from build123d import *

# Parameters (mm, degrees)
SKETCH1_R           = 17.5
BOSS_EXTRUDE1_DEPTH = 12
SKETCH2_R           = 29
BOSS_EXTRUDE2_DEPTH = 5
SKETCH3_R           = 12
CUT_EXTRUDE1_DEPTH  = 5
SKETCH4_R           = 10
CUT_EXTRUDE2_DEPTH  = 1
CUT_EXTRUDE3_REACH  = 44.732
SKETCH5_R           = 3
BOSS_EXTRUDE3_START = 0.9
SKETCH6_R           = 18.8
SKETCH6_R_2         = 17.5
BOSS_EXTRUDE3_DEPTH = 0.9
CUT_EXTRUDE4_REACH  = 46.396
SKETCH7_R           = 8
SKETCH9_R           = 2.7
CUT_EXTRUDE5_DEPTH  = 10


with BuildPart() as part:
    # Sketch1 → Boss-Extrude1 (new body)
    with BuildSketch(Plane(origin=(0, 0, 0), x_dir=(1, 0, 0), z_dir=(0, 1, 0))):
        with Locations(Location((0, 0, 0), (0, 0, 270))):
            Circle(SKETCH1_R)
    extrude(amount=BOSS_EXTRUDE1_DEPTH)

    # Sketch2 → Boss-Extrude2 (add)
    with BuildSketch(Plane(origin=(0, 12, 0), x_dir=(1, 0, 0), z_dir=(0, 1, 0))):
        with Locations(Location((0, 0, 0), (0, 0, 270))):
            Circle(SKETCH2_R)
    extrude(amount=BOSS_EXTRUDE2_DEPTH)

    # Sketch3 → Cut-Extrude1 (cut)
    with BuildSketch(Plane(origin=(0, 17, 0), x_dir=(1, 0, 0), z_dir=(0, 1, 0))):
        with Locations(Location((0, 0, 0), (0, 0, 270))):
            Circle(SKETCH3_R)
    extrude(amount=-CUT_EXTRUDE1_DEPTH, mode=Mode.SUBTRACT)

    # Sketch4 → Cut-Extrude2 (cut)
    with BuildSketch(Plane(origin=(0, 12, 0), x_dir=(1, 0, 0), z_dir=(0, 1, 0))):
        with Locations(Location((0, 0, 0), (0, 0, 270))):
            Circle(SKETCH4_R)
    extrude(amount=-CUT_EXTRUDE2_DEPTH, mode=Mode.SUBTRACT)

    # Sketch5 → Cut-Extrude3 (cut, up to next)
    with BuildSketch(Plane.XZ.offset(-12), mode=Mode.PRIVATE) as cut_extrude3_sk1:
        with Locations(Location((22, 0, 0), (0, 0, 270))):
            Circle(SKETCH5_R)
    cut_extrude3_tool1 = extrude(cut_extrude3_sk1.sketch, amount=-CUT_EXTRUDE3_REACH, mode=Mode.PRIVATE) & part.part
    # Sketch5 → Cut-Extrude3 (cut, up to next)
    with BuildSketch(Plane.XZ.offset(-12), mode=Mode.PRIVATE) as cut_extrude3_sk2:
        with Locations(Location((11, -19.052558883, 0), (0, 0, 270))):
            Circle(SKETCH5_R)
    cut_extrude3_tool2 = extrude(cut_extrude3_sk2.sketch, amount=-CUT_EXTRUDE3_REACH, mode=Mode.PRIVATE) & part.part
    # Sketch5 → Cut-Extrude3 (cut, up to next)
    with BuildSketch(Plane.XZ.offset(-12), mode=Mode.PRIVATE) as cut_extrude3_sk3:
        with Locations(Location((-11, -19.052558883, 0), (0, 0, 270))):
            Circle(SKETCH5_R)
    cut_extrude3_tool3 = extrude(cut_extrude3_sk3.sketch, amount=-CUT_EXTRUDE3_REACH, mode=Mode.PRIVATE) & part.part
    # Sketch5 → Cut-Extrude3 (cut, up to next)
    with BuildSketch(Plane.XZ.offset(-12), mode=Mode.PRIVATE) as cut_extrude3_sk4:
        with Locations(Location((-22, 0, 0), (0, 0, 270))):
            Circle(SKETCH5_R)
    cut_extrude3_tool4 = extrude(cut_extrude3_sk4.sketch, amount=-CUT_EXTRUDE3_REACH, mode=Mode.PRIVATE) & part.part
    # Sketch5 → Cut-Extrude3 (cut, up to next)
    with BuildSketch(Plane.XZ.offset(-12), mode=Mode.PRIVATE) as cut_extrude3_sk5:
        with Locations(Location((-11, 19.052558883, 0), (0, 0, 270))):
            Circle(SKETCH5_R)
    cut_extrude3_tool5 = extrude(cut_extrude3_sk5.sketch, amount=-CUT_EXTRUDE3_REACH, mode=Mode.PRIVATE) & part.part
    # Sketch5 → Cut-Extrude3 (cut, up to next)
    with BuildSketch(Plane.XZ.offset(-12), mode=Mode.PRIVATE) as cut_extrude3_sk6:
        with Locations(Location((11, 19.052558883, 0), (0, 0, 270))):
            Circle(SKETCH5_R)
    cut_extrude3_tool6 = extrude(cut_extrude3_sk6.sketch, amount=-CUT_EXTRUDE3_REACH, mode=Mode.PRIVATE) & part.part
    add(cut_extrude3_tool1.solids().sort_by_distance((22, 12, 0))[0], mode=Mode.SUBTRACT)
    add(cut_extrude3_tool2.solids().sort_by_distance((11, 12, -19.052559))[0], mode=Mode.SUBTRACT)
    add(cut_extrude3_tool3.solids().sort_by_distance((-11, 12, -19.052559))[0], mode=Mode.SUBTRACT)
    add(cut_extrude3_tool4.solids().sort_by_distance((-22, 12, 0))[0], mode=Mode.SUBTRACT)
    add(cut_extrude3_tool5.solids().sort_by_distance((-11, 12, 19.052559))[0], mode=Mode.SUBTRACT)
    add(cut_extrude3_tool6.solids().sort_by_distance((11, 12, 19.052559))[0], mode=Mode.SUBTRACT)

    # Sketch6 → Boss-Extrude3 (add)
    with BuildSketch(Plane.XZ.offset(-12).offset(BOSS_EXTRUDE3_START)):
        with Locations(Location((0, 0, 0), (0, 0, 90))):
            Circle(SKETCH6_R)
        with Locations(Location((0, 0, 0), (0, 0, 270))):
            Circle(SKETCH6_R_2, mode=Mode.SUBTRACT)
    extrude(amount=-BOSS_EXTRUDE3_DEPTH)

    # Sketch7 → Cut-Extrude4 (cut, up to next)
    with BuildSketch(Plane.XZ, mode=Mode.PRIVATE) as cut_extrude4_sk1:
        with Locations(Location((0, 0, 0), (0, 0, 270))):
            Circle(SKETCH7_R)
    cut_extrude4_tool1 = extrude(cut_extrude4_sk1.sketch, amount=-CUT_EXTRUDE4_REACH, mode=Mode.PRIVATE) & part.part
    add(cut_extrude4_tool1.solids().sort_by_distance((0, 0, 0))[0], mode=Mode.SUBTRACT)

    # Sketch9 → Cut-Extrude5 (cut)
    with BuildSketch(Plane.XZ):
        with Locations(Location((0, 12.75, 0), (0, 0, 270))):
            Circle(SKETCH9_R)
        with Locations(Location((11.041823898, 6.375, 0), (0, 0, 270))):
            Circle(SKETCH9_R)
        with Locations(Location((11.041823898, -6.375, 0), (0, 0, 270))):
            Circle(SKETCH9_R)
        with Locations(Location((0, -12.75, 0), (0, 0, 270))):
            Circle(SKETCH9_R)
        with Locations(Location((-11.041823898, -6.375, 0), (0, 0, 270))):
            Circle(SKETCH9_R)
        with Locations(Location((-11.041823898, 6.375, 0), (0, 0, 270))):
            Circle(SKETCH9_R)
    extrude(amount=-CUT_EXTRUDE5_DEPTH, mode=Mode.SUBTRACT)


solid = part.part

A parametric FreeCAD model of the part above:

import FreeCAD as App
import Part
import Sketcher
from FreeCAD import Vector

doc = App.newDocument("Part")
body = doc.addObject("PartDesign::Body", "Body")

# Sketch on XZ plane
sketch1 = body.newObject("Sketcher::SketchObject", "Sketch")
sketch1.AttachmentSupport = (doc.getObject("XZ_Plane"), [""])
sketch1.MapMode = "FlatFace"
sketch1.addGeometry(Part.Circle(Vector(0, 0, 0), Vector(0, 0, 1), 18), False)
sketch1.addConstraint([
    Sketcher.Constraint("Coincident", 0, 3, -1, 1),
    Sketcher.Constraint("Diameter", 0, 35.0),
])
pad1 = body.newObject("PartDesign::Pad", "Pad")
pad1.Profile = sketch1
pad1.Length = 12
pad1.Reversed = True

# Sketch on XZ plane
sketch2 = body.newObject("Sketcher::SketchObject", "Sketch001")
sketch2.AttachmentSupport = (doc.getObject("XZ_Plane"), [""])
sketch2.MapMode = "FlatFace"
sketch2.AttachmentOffset = App.Placement(Vector(0, 0, -12), App.Rotation())
sketch2.addGeometry(Part.Circle(Vector(0, 0, 0), Vector(0, 0, 1), 29), False)
sketch2.addConstraint([
    Sketcher.Constraint("Coincident", 0, 3, -1, 1),
    Sketcher.Constraint("Diameter", 0, 58.0),
])
pad2 = body.newObject("PartDesign::Pad", "Pad001")
pad2.Profile = sketch2
pad2.Length = 5
pad2.Reversed = True

# Sketch on XZ plane
sketch3 = body.newObject("Sketcher::SketchObject", "Sketch002")
sketch3.AttachmentSupport = (doc.getObject("XZ_Plane"), [""])
sketch3.MapMode = "FlatFace"
sketch3.AttachmentOffset = App.Placement(Vector(0, 0, -17), App.Rotation())
sketch3.addGeometry(Part.Circle(Vector(0, 0, 0), Vector(0, 0, 1), 12), False)
sketch3.addConstraint([
    Sketcher.Constraint("Coincident", 0, 3, -1, 1),
    Sketcher.Constraint("Diameter", 0, 24.0),
])
pocket1 = body.newObject("PartDesign::Pocket", "Pocket")
pocket1.Profile = sketch3
pocket1.Length = 5
pocket1.Reversed = True

# Sketch on XZ plane
sketch4 = body.newObject("Sketcher::SketchObject", "Sketch003")
sketch4.AttachmentSupport = (doc.getObject("XZ_Plane"), [""])
sketch4.MapMode = "FlatFace"
sketch4.AttachmentOffset = App.Placement(Vector(0, 0, -12), App.Rotation())
sketch4.addGeometry(Part.Circle(Vector(0, 0, 0), Vector(0, 0, 1), 10), False)
sketch4.addConstraint([
    Sketcher.Constraint("Coincident", 0, 3, -1, 1),
    Sketcher.Constraint("Diameter", 0, 20.0),
])
pocket2 = body.newObject("PartDesign::Pocket", "Pocket001")
pocket2.Profile = sketch4
pocket2.Length = 1
pocket2.Reversed = True

# Sketch on XZ plane
sketch5 = body.newObject("Sketcher::SketchObject", "Sketch004")
sketch5.AttachmentSupport = (doc.getObject("XZ_Plane"), [""])
sketch5.MapMode = "FlatFace"
sketch5.AttachmentOffset = App.Placement(Vector(0, 0, -12), App.Rotation())
sketch5.addGeometry(Part.Circle(Vector(22, 0, 0), Vector(0, 0, 1), 3), False)
sketch5.addConstraint([
    Sketcher.Constraint("PointOnObject", 0, 3, -1),
    Sketcher.Constraint("Diameter", 0, 6.0),
    Sketcher.Constraint("DistanceX", -1, 1, 0, 3, 22.0),
])
pocket3 = body.newObject("PartDesign::Pocket", "Pocket002")
pocket3.Profile = sketch5
pocket3.Type = "UpToFirst"

# Sketch on XZ plane
sketch6 = body.newObject("Sketcher::SketchObject", "Sketch005")
sketch6.AttachmentSupport = (doc.getObject("XZ_Plane"), [""])
sketch6.MapMode = "FlatFace"
sketch6.AttachmentOffset = App.Placement(Vector(0, 0, -12), App.Rotation())
sketch6.addGeometry(Part.Circle(Vector(11, -19.1, 0), Vector(0, 0, 1), 3), False)
sketch6.addConstraint([
    Sketcher.Constraint("Diameter", 0, 6.0),
    Sketcher.Constraint("DistanceX", -1, 1, 0, 3, 11.0),
    Sketcher.Constraint("DistanceY", 0, 3, -1, 1, 19.052559),
])
pocket4 = body.newObject("PartDesign::Pocket", "Pocket003")
pocket4.Profile = sketch6
pocket4.Type = "UpToFirst"

# Sketch on XZ plane
sketch7 = body.newObject("Sketcher::SketchObject", "Sketch006")
sketch7.AttachmentSupport = (doc.getObject("XZ_Plane"), [""])
sketch7.MapMode = "FlatFace"
sketch7.AttachmentOffset = App.Placement(Vector(0, 0, -12), App.Rotation())
sketch7.addGeometry(Part.Circle(Vector(-11, -19.1, 0), Vector(0, 0, 1), 3), False)
sketch7.addConstraint([
    Sketcher.Constraint("Diameter", 0, 6.0),
    Sketcher.Constraint("DistanceX", 0, 3, -1, 1, 11.0),
    Sketcher.Constraint("DistanceY", 0, 3, -1, 1, 19.052559),
])
pocket5 = body.newObject("PartDesign::Pocket", "Pocket004")
pocket5.Profile = sketch7
pocket5.Type = "UpToFirst"

# Sketch on XZ plane
sketch8 = body.newObject("Sketcher::SketchObject", "Sketch007")
sketch8.AttachmentSupport = (doc.getObject("XZ_Plane"), [""])
sketch8.MapMode = "FlatFace"
sketch8.AttachmentOffset = App.Placement(Vector(0, 0, -12), App.Rotation())
sketch8.addGeometry(Part.Circle(Vector(-22, 0, 0), Vector(0, 0, 1), 3), False)
sketch8.addConstraint([
    Sketcher.Constraint("PointOnObject", 0, 3, -1),
    Sketcher.Constraint("Diameter", 0, 6.0),
    Sketcher.Constraint("DistanceX", 0, 3, -1, 1, 22.0),
])
pocket6 = body.newObject("PartDesign::Pocket", "Pocket005")
pocket6.Profile = sketch8
pocket6.Type = "UpToFirst"

# Sketch on XZ plane
sketch9 = body.newObject("Sketcher::SketchObject", "Sketch008")
sketch9.AttachmentSupport = (doc.getObject("XZ_Plane"), [""])
sketch9.MapMode = "FlatFace"
sketch9.AttachmentOffset = App.Placement(Vector(0, 0, -12), App.Rotation())
sketch9.addGeometry(Part.Circle(Vector(-11, 19.1, 0), Vector(0, 0, 1), 3), False)
sketch9.addConstraint([
    Sketcher.Constraint("Diameter", 0, 6.0),
    Sketcher.Constraint("DistanceX", 0, 3, -1, 1, 11.0),
    Sketcher.Constraint("DistanceY", -1, 1, 0, 3, 19.052559),
])
pocket7 = body.newObject("PartDesign::Pocket", "Pocket006")
pocket7.Profile = sketch9
pocket7.Type = "UpToFirst"

# Sketch on XZ plane
sketch10 = body.newObject("Sketcher::SketchObject", "Sketch009")
sketch10.AttachmentSupport = (doc.getObject("XZ_Plane"), [""])
sketch10.MapMode = "FlatFace"
sketch10.AttachmentOffset = App.Placement(Vector(0, 0, -12), App.Rotation())
sketch10.addGeometry(Part.Circle(Vector(11, 19.1, 0), Vector(0, 0, 1), 3), False)
sketch10.addConstraint([
    Sketcher.Constraint("Diameter", 0, 6.0),
    Sketcher.Constraint("DistanceX", -1, 1, 0, 3, 11.0),
    Sketcher.Constraint("DistanceY", -1, 1, 0, 3, 19.052559),
])
pocket8 = body.newObject("PartDesign::Pocket", "Pocket007")
pocket8.Profile = sketch10
pocket8.Type = "UpToFirst"

# Sketch on XZ plane
sketch11 = body.newObject("Sketcher::SketchObject", "Sketch010")
sketch11.AttachmentSupport = (doc.getObject("XZ_Plane"), [""])
sketch11.MapMode = "FlatFace"
sketch11.AttachmentOffset = App.Placement(Vector(0, 0, -11.1), App.Rotation())
sketch11.addGeometry([
    Part.Circle(Vector(0, 0, 0), Vector(0, 0, 1), 19),
    Part.Circle(Vector(0, 0, 0), Vector(0, 0, 1), 18),
], False)
sketch11.addConstraint([
    Sketcher.Constraint("Coincident", 0, 3, -1, 1),
    Sketcher.Constraint("Coincident", 1, 3, -1, 1),
    Sketcher.Constraint("Diameter", 1, 35.0),
    Sketcher.Constraint("Diameter", 0, 37.6),
])
pad3 = body.newObject("PartDesign::Pad", "Pad002")
pad3.Profile = sketch11
pad3.Length = 0.9
pad3.Reversed = True

# Sketch on XZ plane
sketch12 = body.newObject("Sketcher::SketchObject", "Sketch011")
sketch12.AttachmentSupport = (doc.getObject("XZ_Plane"), [""])
sketch12.MapMode = "FlatFace"
sketch12.addGeometry(Part.Circle(Vector(0, 0, 0), Vector(0, 0, 1), 8), False)
sketch12.addConstraint([
    Sketcher.Constraint("Coincident", 0, 3, -1, 1),
    Sketcher.Constraint("Diameter", 0, 16.0),
])
pocket9 = body.newObject("PartDesign::Pocket", "Pocket008")
pocket9.Profile = sketch12
pocket9.Type = "UpToFirst"

# Sketch on XZ plane
sketch13 = body.newObject("Sketcher::SketchObject", "Sketch012")
sketch13.AttachmentSupport = (doc.getObject("XZ_Plane"), [""])
sketch13.MapMode = "FlatFace"
sketch13.addGeometry([
    Part.Circle(Vector(0, 12.8, 0), Vector(0, 0, 1), 2.7),  # 0
    Part.Circle(Vector(11, 6.4, 0), Vector(0, 0, 1), 2.7),  # 1
    Part.Circle(Vector(11, -6.4, 0), Vector(0, 0, 1), 2.7),  # 2
    Part.Circle(Vector(0, -12.8, 0), Vector(0, 0, 1), 2.7),  # 3
    Part.Circle(Vector(-11, -6.4, 0), Vector(0, 0, 1), 2.7),  # 4
    Part.Circle(Vector(-11, 6.4, 0), Vector(0, 0, 1), 2.7),  # 5
], False)
sketch13.addConstraint([
    Sketcher.Constraint("Equal", 0, 1),
    Sketcher.Constraint("Equal", 1, 2),
    Sketcher.Constraint("Equal", 2, 3),
    Sketcher.Constraint("Equal", 3, 4),
    Sketcher.Constraint("Equal", 4, 5),
    Sketcher.Constraint("Symmetric", 0, 3, 3, 3, -1, 1),
    Sketcher.Constraint("Symmetric", 1, 3, 4, 3, -1, 1),
    Sketcher.Constraint("Symmetric", 2, 3, 5, 3, -1, 1),
    Sketcher.Constraint("Symmetric", 2, 3, 4, 3, -2),
    Sketcher.Constraint("PointOnObject", 0, 3, -2),
    Sketcher.Constraint("Diameter", 0, 5.4),
    Sketcher.Constraint("DistanceY", 3, 3, 0, 3, 25.5),
    Sketcher.Constraint("DistanceY", 2, 3, 1, 3, 12.75),
    Sketcher.Constraint("DistanceX", -1, 1, 1, 3, 11.041824),
])
pocket10 = body.newObject("PartDesign::Pocket", "Pocket009")
pocket10.Profile = sketch13
pocket10.Length = 10

doc.recompute()
